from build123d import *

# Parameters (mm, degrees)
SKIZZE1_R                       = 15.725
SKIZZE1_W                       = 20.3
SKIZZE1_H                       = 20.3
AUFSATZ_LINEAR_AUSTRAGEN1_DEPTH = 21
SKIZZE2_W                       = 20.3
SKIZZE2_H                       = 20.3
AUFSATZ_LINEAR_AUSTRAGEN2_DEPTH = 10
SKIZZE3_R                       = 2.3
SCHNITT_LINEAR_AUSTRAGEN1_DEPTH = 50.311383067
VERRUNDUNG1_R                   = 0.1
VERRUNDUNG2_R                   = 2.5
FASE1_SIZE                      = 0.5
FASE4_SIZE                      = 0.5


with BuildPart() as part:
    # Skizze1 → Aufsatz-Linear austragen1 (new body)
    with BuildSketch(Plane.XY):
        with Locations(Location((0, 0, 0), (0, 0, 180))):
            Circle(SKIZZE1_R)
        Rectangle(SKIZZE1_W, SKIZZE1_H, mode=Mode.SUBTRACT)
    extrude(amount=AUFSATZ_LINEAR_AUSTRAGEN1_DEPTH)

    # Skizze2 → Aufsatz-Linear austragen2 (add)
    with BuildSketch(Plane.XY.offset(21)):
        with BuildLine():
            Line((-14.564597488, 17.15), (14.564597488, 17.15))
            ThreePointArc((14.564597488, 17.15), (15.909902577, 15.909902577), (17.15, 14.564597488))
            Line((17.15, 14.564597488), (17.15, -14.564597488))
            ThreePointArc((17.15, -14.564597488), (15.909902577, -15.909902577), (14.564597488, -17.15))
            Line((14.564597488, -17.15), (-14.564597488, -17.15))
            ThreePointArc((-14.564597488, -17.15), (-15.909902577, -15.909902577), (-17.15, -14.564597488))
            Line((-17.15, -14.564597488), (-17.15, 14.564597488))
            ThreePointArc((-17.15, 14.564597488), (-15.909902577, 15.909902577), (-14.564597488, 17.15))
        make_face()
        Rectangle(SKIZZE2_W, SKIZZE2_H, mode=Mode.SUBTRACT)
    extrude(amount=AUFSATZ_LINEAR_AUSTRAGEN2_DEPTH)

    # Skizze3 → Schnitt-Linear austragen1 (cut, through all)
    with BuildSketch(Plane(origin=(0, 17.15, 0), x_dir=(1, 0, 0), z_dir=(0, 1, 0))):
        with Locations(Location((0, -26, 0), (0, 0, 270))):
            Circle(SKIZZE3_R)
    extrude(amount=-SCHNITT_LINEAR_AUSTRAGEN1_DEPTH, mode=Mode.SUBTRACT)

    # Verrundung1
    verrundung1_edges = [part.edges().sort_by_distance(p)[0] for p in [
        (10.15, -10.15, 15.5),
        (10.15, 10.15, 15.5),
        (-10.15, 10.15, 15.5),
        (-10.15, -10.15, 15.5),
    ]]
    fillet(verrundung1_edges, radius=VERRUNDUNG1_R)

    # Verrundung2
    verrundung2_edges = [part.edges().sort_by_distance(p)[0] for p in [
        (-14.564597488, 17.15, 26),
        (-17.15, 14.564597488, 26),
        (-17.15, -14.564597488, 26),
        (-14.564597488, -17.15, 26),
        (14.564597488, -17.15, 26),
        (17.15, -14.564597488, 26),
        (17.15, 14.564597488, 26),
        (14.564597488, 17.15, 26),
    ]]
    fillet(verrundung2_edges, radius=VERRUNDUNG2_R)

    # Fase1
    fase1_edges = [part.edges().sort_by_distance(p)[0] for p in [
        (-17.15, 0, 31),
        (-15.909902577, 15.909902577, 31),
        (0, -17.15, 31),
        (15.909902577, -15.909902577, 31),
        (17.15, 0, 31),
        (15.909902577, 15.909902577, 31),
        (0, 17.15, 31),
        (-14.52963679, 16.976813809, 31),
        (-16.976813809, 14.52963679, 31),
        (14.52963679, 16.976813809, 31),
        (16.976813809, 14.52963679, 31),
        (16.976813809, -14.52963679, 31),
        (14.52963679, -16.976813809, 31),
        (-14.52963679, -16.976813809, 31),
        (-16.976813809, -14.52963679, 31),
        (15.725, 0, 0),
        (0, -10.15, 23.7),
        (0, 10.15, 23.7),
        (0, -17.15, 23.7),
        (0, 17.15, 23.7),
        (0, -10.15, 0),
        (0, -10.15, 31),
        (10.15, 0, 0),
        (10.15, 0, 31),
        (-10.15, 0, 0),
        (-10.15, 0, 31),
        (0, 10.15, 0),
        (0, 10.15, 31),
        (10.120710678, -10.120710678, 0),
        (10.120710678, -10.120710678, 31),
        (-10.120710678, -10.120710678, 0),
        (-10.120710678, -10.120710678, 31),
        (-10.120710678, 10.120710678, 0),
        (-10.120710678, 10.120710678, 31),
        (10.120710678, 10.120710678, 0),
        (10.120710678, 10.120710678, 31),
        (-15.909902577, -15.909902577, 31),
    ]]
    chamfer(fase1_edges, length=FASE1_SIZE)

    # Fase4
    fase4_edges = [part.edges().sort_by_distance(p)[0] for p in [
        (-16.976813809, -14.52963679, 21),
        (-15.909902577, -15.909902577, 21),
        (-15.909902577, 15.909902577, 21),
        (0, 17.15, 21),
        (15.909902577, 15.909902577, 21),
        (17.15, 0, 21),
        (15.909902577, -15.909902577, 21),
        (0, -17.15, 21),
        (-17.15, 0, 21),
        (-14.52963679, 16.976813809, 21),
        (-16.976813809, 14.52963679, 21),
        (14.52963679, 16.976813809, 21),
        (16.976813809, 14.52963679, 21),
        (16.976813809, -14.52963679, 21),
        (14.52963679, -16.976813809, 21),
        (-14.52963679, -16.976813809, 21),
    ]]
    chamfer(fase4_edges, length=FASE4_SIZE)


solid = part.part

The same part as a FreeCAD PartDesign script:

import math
import FreeCAD as App
import Part
import Sketcher
from FreeCAD import Vector


def edges_at(feature, points):
    """Names of the edges that pass closest to the given points."""
    edges = feature.Shape.Edges
    near = lambda p: min(range(len(edges)), key=lambda i: edges[i].distToShape(Part.Vertex(*p))[0])
    return sorted({f"Edge{near(p) + 1}" for p in points})


def add_polygon(sketch, points):
    """Adds a closed chain of lines whose ends are joined by coincident constraints."""
    first, n = sketch.GeometryCount, len(points)
    for a, b in zip(points, points[1:] + points[:1]):
        sketch.addGeometry(Part.LineSegment(App.Vector(*a, 0), App.Vector(*b, 0)), False)
    for i in range(n):
        sketch.addConstraint(Sketcher.Constraint("Coincident", first + i, 2, first + (i + 1) % n, 1))

doc = App.newDocument("Part")
body = doc.addObject("PartDesign::Body", "Body")

# Sketch on XY plane
sketch1 = doc.addObject("Sketcher::SketchObject", "Sketch")
body.addObject(sketch1)
sketch1.AttachmentSupport = (doc.XY_Plane, [""])
sketch1.MapMode = "FlatFace"
sketch1.addGeometry(Part.Circle(Vector(0, 0, 0), Vector(0, 0, 1), 15.725), False)  # 0
add_polygon(sketch1, [(10.15, -10.15), (-10.15, -10.15), (-10.15, 10.15), (10.15, 10.15)])  # lines 1-4
sketch1.addConstraint([
    Sketcher.Constraint("Horizontal", 1),
    Sketcher.Constraint("Vertical", 2),
    Sketcher.Constraint("Horizontal", 3),
    Sketcher.Constraint("Vertical", 4),
    Sketcher.Constraint("Coincident", 0, 3, -1, 1),
    Sketcher.Constraint("Symmetric", 1, 2, 3, 2, -1, 1),
    Sketcher.Constraint("Equal", 3, 2),
    Sketcher.Constraint("Diameter", 0, 31.45),
    Sketcher.Constraint("DistanceX", 1, 2, 1, 1, 20.3),
])
pad1 = doc.addObject("PartDesign::Pad", "Pad")
body.addObject(pad1)
pad1.Profile = sketch1
pad1.Length = 21

# Sketch on XY plane
sketch2 = doc.addObject("Sketcher::SketchObject", "Sketch001")
body.addObject(sketch2)
sketch2.AttachmentSupport = (doc.XY_Plane, [""])
sketch2.MapMode = "FlatFace"
sketch2.AttachmentOffset = App.Placement(Vector(0, 0, 21), App.Rotation())
sketch2.addGeometry(Part.LineSegment(Vector(14.564597, 17.15, 0), Vector(-14.564597, 17.15, 0)), False)  # 0
sketch2.addGeometry(Part.ArcOfCircle(Part.Circle(Vector(0, 0, 0), Vector(0, 0, 1), 22.5), math.radians(130.339502), math.radians(139.660498)), False)  # 1
sketch2.addGeometry(Part.LineSegment(Vector(-17.15, 14.564597, 0), Vector(-17.15, -14.564597, 0)), False)  # 2
sketch2.addGeometry(Part.ArcOfCircle(Part.Circle(Vector(0, 0, 0), Vector(0, 0, 1), 22.5), math.radians(-139.660498), math.radians(-130.339502)), False)  # 3
sketch2.addGeometry(Part.LineSegment(Vector(-14.564597, -17.15, 0), Vector(14.564597, -17.15, 0)), False)  # 4
sketch2.addGeometry(Part.ArcOfCircle(Part.Circle(Vector(0, 0, 0), Vector(0, 0, 1), 22.5), math.radians(-49.660498), math.radians(-40.339502)), False)  # 5
sketch2.addGeometry(Part.LineSegment(Vector(17.15, -14.564597, 0), Vector(17.15, 14.564597, 0)), False)  # 6
sketch2.addGeometry(Part.ArcOfCircle(Part.Circle(Vector(0, 0, 0), Vector(0, 0, 1), 22.5), math.radians(40.339502), math.radians(49.660498)), False)  # 7
add_polygon(sketch2, [(-10.15, -10.15), (-10.15, 10.15), (10.15, 10.15), (10.15, -10.15)])  # lines 8-11
sketch2.addConstraint([
    Sketcher.Constraint("Coincident", 0, 2, 1, 1),
    Sketcher.Constraint("Coincident", 1, 2, 2, 1),
    Sketcher.Constraint("Coincident", 2, 2, 3, 1),
    Sketcher.Constraint("Coincident", 3, 2, 4, 1),
    Sketcher.Constraint("Coincident", 4, 2, 5, 1),
    Sketcher.Constraint("Coincident", 5, 2, 6, 1),
    Sketcher.Constraint("Coincident", 6, 2, 7, 1),
    Sketcher.Constraint("Coincident", 7, 2, 0, 1),
    Sketcher.Constraint("Horizontal", 0),
    Sketcher.Constraint("Vertical", 2),
    Sketcher.Constraint("Horizontal", 4),
    Sketcher.Constraint("Vertical", 6),
    Sketcher.Constraint("Vertical", 8),
    Sketcher.Constraint("Horizontal", 9),
    Sketcher.Constraint("Vertical", 10),
    Sketcher.Constraint("Horizontal", 11),
    Sketcher.Constraint("Coincident", 1, 3, -1, 1),
    Sketcher.Constraint("Coincident", 3, 3, -1, 1),
    Sketcher.Constraint("Coincident", 5, 3, -1, 1),
    Sketcher.Constraint("Coincident", 7, 3, -1, 1),
    Sketcher.Constraint("Equal", 1, 3),
    Sketcher.Constraint("Equal", 3, 5),
    Sketcher.Constraint("Equal", 5, 7),
    Sketcher.Constraint("Symmetric", 8, 2, 10, 2, -1, 1),
    Sketcher.Constraint("Horizontal", 2, 2, 5, 2),
    Sketcher.Constraint("Vertical", 0, 2, 3, 2),
    Sketcher.Constraint("Equal", 4, 2),
    Sketcher.Constraint("Equal", 11, 8),
    Sketcher.Constraint("Radius", 1, 22.5),
    Sketcher.Constraint("DistanceX", 9, 1, 9, 2, 20.3),
    Sketcher.Constraint("DistanceY", 8, 2, 0, 2, 7.0),
])
pad2 = doc.addObject("PartDesign::Pad", "Pad001")
body.addObject(pad2)
pad2.Profile = sketch2
pad2.Length = 10

# Sketch on XZ plane
sketch3 = doc.addObject("Sketcher::SketchObject", "Sketch002")
body.addObject(sketch3)
sketch3.AttachmentSupport = (doc.XZ_Plane, [""])
sketch3.MapMode = "FlatFace"
sketch3.AttachmentOffset = App.Placement(Vector(0, 0, -17.15), App.Rotation())
sketch3.addGeometry(Part.Circle(Vector(0, 26, 0), Vector(0, 0, 1), 2.3), False)
sketch3.addConstraint([
    Sketcher.Constraint("PointOnObject", 0, 3, -2),
    Sketcher.Constraint("Diameter", 0, 4.6),
    Sketcher.Constraint("DistanceY", -1, 1, 0, 3, 26.0),
])
pocket1 = doc.addObject("PartDesign::Pocket", "Pocket")
body.addObject(pocket1)
pocket1.Profile = sketch3
pocket1.Type = "ThroughAll"
pocket1.Reversed = True
doc.recompute()

fillet = doc.addObject("PartDesign::Fillet", "Fillet")
body.addObject(fillet)
fillet.Base = (pocket1, edges_at(pocket1, [
    (10.15, -10.15, 15.5),
    (10.15, 10.15, 15.5),
    (-10.15, 10.15, 15.5),
    (-10.15, -10.15, 15.5),
]))
fillet.Radius = 0.1
doc.recompute()

fillet2 = doc.addObject("PartDesign::Fillet", "Fillet001")
body.addObject(fillet2)
fillet2.Base = (fillet, edges_at(fillet, [
    (-14.565, 17.15, 26),
    (-17.15, 14.565, 26),
    (-17.15, -14.565, 26),
    (-14.565, -17.15, 26),
    (14.565, -17.15, 26),
    (17.15, -14.565, 26),
    (17.15, 14.565, 26),
    (14.565, 17.15, 26),
]))
fillet2.Radius = 2.5
doc.recompute()

chamfer = doc.addObject("PartDesign::Chamfer", "Chamfer")
body.addObject(chamfer)
chamfer.Base = (fillet2, edges_at(fillet2, [
    (-17.15, 0, 31),
    (-15.91, 15.91, 31),
    (0, -17.15, 31),
    (15.91, -15.91, 31),
    (17.15, 0, 31),
    (15.91, 15.91, 31),
    (0, 17.15, 31),
    (-14.53, 16.977, 31),
    (-16.977, 14.53, 31),
    (14.53, 16.977, 31),
    (16.977, 14.53, 31),
    (16.977, -14.53, 31),
    (14.53, -16.977, 31),
    (-14.53, -16.977, 31),
    (-16.977, -14.53, 31),
    (15.725, 0, 0),
    (0, -10.15, 23.7),
    (0, 10.15, 23.7),
    (0, -17.15, 23.7),
    (0, 17.15, 23.7),
    (0, -10.15, 0),
    (0, -10.15, 31),
    (10.15, 0, 0),
    (10.15, 0, 31),
    (-10.15, 0, 0),
    (-10.15, 0, 31),
    (0, 10.15, 0),
    (0, 10.15, 31),
    (10.121, -10.121, 0),
    (10.121, -10.121, 31),
    (-10.121, -10.121, 0),
    (-10.121, -10.121, 31),
    (-10.121, 10.121, 0),
    (-10.121, 10.121, 31),
    (10.121, 10.121, 0),
    (10.121, 10.121, 31),
    (-15.91, -15.91, 31),
]))
chamfer.Size = 0.5
doc.recompute()

chamfer2 = doc.addObject("PartDesign::Chamfer", "Chamfer001")
body.addObject(chamfer2)
chamfer2.Base = (chamfer, edges_at(chamfer, [
    (-16.977, -14.53, 21),
    (-15.91, -15.91, 21),
    (-15.91, 15.91, 21),
    (0, 17.15, 21),
    (15.91, 15.91, 21),
    (17.15, 0, 21),
    (15.91, -15.91, 21),
    (0, -17.15, 21),
    (-17.15, 0, 21),
    (-14.53, 16.977, 21),
    (-16.977, 14.53, 21),
    (14.53, 16.977, 21),
    (16.977, 14.53, 21),
    (16.977, -14.53, 21),
    (14.53, -16.977, 21),
    (-14.53, -16.977, 21),
]))
chamfer2.Size = 0.5

doc.recompute()
